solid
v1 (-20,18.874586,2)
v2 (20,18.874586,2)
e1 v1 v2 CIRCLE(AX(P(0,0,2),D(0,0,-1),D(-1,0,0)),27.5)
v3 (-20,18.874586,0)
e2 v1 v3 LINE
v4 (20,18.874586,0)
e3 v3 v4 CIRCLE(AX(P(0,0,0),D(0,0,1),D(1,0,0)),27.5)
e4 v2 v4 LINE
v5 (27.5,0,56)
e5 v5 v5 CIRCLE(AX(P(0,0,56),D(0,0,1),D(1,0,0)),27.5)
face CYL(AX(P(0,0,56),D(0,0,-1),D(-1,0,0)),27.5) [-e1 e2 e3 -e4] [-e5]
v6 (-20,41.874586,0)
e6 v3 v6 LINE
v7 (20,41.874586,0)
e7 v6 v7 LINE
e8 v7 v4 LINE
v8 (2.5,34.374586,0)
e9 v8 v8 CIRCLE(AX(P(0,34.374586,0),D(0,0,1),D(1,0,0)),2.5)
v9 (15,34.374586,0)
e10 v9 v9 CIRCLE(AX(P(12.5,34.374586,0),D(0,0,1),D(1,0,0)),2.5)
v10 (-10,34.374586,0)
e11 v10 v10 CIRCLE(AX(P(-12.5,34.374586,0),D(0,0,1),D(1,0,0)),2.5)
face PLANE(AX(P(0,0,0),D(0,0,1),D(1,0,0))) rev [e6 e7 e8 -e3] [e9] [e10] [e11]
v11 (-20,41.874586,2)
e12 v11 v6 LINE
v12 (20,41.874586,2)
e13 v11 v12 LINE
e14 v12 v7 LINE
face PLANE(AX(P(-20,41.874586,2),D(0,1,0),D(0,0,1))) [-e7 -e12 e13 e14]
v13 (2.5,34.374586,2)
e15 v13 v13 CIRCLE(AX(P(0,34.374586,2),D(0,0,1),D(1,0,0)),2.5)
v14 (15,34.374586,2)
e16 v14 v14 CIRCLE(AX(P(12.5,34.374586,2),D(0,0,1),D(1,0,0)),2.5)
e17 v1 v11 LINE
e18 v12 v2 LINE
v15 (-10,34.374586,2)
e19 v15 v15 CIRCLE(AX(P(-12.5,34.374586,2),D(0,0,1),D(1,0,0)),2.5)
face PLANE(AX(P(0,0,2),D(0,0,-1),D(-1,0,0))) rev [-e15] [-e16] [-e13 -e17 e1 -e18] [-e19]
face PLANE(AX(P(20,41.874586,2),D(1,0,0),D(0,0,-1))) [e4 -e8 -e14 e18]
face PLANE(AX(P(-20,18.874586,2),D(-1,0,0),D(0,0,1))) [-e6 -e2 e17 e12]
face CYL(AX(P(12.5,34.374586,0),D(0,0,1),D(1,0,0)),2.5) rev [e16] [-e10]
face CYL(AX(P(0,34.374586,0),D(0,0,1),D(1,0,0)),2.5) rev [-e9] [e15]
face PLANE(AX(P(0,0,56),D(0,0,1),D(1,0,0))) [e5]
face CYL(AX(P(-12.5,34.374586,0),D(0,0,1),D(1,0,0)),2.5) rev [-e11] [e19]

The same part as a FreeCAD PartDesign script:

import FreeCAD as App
import Part
import Sketcher

V = App.Vector


def add_polygon(sketch, points):
    """Adds a closed chain of lines whose ends are joined by coincident constraints."""
    first, n = sketch.GeometryCount, len(points)
    for a, b in zip(points, points[1:] + points[:1]):
        sketch.addGeometry(Part.LineSegment(App.Vector(*a, 0), App.Vector(*b, 0)), False)
    for i in range(n):
        sketch.addConstraint(Sketcher.Constraint("Coincident", first + i, 2, first + (i + 1) % n, 1))

doc = App.newDocument("Part")
params = doc.addObject("Spreadsheet::Sheet", "Params")
for row, (alias, value) in enumerate([
    ("sketch1_diameter", "55 mm"),
    ("pad1_length", "56 mm"),
    ("sketch2_width", "40 mm"),
    ("sketch2_height", "23 mm"),
    ("pad2_length", "2 mm"),
    ("sketch3_diameter", "5 mm"),
    ("pocket1_length", "2 mm"),
], start=1):
    params.set(f"A{row}", alias)
    params.set(f"B{row}", "=" + value)
    params.setAlias(f"B{row}", alias)

body = doc.addObject("PartDesign::Body", "Body")

sketch1 = doc.addObject("Sketcher::SketchObject", "Sketch")
body.addObject(sketch1)
sketch1.AttachmentSupport = (doc.XY_Plane, [""])
sketch1.MapMode = "FlatFace"
sketch1.addGeometry(Part.Circle(V(0, 0, 0), V(0, 0, 1), 28), False)
sketch1.addConstraint([
    Sketcher.Constraint("Coincident", 0, 3, -1, 1),
    Sketcher.Constraint("Diameter", 0, 55.0),
])
sketch1.setExpression("Constraints[1]", "Params.sketch1_diameter")
pad1 = doc.addObject("PartDesign::Pad", "Pad")
body.addObject(pad1)
pad1.Profile = sketch1
pad1.setExpression("Length", "Params.pad1_length")

sketch2 = doc.addObject("Sketcher::SketchObject", "Sketch001")
body.addObject(sketch2)
sketch2.AttachmentSupport = (doc.XY_Plane, [""])
sketch2.MapMode = "FlatFace"
add_polygon(sketch2, [(20, 42), (20, 19), (-20, 19), (-20, 42)])
sketch2.addConstraint([
    Sketcher.Constraint("Vertical", 0),
    Sketcher.Constraint("Horizontal", 1),
    Sketcher.Constraint("Vertical", 2),
    Sketcher.Constraint("Horizontal", 3),
    Sketcher.Constraint("DistanceX", 1, 2, 1, 1, 40.0),
    Sketcher.Constraint("DistanceY", 0, 2, 0, 1, 23.0),
    Sketcher.Constraint("DistanceX", -1, 1, 0, 2, 20.0),
    Sketcher.Constraint("DistanceY", -1, 1, 0, 2, 18.874586),
])
sketch2.setExpression("Constraints[8]", "Params.sketch2_width")
sketch2.setExpression("Constraints[9]", "Params.sketch2_height")
pad2 = doc.addObject("PartDesign::Pad", "Pad001")
body.addObject(pad2)
pad2.Profile = sketch2
pad2.setExpression("Length", "Params.pad2_length")

sketch3 = doc.addObject("Sketcher::SketchObject", "Sketch002")
body.addObject(sketch3)
sketch3.AttachmentSupport = (doc.XY_Plane, [""])
sketch3.MapMode = "FlatFace"
sketch3.AttachmentOffset = App.Placement(V(0, 0, 2), App.Rotation())
sketch3.addGeometry([
    Part.Circle(V(0, 34.4, 0), V(0, 0, 1), 2.5),
    Part.Circle(V(-12.5, 34.4, 0), V(0, 0, 1), 2.5),
    Part.Circle(V(12.5, 34.4, 0), V(0, 0, 1), 2.5),
], False)
sketch3.addConstraint([
    Sketcher.Constraint("Equal", 0, 1),
    Sketcher.Constraint("Equal", 1, 2),
    Sketcher.Constraint("Symmetric", 1, 3, 2, 3, -2),
    Sketcher.Constraint("PointOnObject", 0, 3, -2),
    Sketcher.Constraint("Horizontal", 0, 3, 1, 3),
    Sketcher.Constraint("Diameter", 0, 5.0),
    Sketcher.Constraint("DistanceX", 1, 3, 2, 3, 25.0),
    Sketcher.Constraint("DistanceY", -1, 1, 0, 3, 34.374586),
])
sketch3.setExpression("Constraints[5]", "Params.sketch3_diameter")
pocket1 = doc.addObject("PartDesign::Pocket", "Pocket")
body.addObject(pocket1)
pocket1.Profile = sketch3
pocket1.setExpression("Length", "Params.pocket1_length")

doc.recompute()
